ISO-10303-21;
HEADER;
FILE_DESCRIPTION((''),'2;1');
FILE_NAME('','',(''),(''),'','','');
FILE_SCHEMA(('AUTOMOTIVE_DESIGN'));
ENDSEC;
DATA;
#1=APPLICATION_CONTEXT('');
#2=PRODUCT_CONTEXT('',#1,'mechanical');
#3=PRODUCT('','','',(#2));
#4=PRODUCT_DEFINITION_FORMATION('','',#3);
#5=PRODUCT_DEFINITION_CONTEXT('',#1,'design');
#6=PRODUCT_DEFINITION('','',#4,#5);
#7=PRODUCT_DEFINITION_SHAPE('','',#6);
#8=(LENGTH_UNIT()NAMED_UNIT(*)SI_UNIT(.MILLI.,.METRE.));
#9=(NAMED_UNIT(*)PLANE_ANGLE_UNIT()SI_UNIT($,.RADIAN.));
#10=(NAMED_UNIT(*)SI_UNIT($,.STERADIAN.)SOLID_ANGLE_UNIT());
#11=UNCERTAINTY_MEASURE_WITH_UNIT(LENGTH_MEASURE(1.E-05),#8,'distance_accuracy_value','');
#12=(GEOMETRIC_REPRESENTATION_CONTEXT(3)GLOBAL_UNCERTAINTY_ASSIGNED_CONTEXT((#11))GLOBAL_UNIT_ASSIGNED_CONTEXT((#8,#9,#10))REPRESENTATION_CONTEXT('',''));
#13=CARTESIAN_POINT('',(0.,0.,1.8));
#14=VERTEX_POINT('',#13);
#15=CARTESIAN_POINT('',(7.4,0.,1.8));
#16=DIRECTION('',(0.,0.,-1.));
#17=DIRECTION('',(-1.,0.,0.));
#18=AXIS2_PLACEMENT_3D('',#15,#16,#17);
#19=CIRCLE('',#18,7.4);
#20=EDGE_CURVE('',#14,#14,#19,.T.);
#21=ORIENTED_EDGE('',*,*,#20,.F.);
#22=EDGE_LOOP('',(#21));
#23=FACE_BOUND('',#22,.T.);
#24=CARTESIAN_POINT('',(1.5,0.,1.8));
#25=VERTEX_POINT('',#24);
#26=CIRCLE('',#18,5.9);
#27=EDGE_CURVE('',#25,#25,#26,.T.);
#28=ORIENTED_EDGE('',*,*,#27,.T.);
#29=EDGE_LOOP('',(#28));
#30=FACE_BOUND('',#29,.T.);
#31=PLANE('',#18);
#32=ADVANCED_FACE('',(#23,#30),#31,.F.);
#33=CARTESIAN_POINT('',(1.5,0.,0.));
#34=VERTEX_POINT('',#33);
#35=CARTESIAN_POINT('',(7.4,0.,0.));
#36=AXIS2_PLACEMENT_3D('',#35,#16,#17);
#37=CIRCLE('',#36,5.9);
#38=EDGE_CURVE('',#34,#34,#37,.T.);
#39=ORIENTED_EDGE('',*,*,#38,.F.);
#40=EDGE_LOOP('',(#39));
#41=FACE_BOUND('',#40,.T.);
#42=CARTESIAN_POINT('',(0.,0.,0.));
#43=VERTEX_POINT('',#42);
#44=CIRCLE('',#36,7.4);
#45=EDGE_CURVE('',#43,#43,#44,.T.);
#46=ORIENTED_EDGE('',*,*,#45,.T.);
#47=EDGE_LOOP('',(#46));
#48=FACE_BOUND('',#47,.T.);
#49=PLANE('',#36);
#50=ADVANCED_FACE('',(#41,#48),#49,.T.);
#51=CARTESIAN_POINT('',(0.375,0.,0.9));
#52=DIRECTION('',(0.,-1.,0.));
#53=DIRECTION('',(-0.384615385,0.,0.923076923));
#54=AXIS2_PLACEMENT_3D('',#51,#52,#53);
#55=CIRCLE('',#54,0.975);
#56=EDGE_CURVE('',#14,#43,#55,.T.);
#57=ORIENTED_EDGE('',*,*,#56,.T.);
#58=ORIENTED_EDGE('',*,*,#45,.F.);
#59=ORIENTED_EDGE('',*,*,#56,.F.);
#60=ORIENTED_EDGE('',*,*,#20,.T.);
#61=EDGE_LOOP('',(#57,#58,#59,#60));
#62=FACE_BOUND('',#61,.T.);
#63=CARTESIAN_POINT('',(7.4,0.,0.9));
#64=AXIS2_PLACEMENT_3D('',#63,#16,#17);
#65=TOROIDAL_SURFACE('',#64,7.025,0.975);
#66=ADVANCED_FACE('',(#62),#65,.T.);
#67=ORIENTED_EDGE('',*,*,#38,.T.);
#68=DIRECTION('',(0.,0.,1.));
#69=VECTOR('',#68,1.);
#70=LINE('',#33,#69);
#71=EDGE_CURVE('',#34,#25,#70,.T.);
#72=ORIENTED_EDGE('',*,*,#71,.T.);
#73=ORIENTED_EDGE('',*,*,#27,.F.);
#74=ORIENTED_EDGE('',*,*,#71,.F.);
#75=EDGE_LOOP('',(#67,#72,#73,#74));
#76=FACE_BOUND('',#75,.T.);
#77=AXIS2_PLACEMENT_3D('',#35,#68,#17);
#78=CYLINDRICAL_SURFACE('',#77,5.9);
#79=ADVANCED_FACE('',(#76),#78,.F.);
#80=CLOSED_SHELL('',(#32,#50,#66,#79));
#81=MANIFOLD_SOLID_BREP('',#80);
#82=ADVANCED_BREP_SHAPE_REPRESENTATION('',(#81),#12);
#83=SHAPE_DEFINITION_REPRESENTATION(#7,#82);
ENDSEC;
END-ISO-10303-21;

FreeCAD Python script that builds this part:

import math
import FreeCAD as App
import Part
import Sketcher

doc = App.newDocument("Part")
params = doc.addObject("Spreadsheet::Sheet", "Params")
for row, (alias, value) in enumerate([
    ("sketch1_width", "1.5 mm"),
    ("sketch1_height", "1.8 mm"),
    ("revolution_angle", "360 deg"),
], start=1):
    params.set(f"A{row}", alias)
    params.set(f"B{row}", "=" + value)
    params.setAlias(f"B{row}", alias)

body = doc.addObject("PartDesign::Body", "Body")

sketch1 = body.newObject("Sketcher::SketchObject", "Sketch")
sketch1.AttachmentSupport = (doc.getObject("XZ_Plane"), [""])
sketch1.MapMode = "FlatFace"
sketch1.addGeometry([
    Part.LineSegment(App.Vector(1.5, 1.8, 0), App.Vector(0, 1.8, 0)),
    Part.ArcOfCircle(Part.Circle(App.Vector(0.375, 0.9, 0), App.Vector(0, 0, 1), 0.975), math.radians(112.619865), math.radians(247.380135)),
    Part.LineSegment(App.Vector(0, 0, 0), App.Vector(1.5, 0, 0)),
    Part.LineSegment(App.Vector(1.5, 0, 0), App.Vector(1.5, 1.8, 0)),
], False)
sketch1.addGeometry(Part.LineSegment(App.Vector(7.4, 1.8, 0), App.Vector(7.4, 0, 0)), True)
sketch1.addConstraint([
    Sketcher.Constraint("Coincident", 0, 2, 1, 1),
    Sketcher.Constraint("Coincident", 1, 2, 2, 1),
    Sketcher.Constraint("Coincident", 2, 2, 3, 1),
    Sketcher.Constraint("Coincident", 3, 2, 0, 1),
    Sketcher.Constraint("Horizontal", 0),
    Sketcher.Constraint("Horizontal", 2),
    Sketcher.Constraint("Vertical", 3),
    Sketcher.Constraint("Vertical", 4),
    Sketcher.Constraint("Coincident", 1, 2, -1, 1),
    Sketcher.Constraint("PointOnObject", 0, 2, -2),
    Sketcher.Constraint("PointOnObject", 4, 2, -1),
    Sketcher.Constraint("Horizontal", 3, 2, 4, 1),
    Sketcher.Constraint("DistanceX", 0, 2, 0, 1, 1.5),
    Sketcher.Constraint("DistanceY", 3, 1, 3, 2, 1.8),
    Sketcher.Constraint("Radius", 1, 0.975),
    Sketcher.Constraint("DistanceX", -1, 1, 4, 1, 7.4),
])
sketch1.setExpression("Constraints[12]", "Params.sketch1_width")
sketch1.setExpression("Constraints[13]", "Params.sketch1_height")
revolution = body.newObject("PartDesign::Revolution", "Revolution")
revolution.Profile = sketch1
revolution.ReferenceAxis = (sketch1, ["Axis0"])
revolution.setExpression("Angle", "Params.revolution_angle")

doc.recompute()
